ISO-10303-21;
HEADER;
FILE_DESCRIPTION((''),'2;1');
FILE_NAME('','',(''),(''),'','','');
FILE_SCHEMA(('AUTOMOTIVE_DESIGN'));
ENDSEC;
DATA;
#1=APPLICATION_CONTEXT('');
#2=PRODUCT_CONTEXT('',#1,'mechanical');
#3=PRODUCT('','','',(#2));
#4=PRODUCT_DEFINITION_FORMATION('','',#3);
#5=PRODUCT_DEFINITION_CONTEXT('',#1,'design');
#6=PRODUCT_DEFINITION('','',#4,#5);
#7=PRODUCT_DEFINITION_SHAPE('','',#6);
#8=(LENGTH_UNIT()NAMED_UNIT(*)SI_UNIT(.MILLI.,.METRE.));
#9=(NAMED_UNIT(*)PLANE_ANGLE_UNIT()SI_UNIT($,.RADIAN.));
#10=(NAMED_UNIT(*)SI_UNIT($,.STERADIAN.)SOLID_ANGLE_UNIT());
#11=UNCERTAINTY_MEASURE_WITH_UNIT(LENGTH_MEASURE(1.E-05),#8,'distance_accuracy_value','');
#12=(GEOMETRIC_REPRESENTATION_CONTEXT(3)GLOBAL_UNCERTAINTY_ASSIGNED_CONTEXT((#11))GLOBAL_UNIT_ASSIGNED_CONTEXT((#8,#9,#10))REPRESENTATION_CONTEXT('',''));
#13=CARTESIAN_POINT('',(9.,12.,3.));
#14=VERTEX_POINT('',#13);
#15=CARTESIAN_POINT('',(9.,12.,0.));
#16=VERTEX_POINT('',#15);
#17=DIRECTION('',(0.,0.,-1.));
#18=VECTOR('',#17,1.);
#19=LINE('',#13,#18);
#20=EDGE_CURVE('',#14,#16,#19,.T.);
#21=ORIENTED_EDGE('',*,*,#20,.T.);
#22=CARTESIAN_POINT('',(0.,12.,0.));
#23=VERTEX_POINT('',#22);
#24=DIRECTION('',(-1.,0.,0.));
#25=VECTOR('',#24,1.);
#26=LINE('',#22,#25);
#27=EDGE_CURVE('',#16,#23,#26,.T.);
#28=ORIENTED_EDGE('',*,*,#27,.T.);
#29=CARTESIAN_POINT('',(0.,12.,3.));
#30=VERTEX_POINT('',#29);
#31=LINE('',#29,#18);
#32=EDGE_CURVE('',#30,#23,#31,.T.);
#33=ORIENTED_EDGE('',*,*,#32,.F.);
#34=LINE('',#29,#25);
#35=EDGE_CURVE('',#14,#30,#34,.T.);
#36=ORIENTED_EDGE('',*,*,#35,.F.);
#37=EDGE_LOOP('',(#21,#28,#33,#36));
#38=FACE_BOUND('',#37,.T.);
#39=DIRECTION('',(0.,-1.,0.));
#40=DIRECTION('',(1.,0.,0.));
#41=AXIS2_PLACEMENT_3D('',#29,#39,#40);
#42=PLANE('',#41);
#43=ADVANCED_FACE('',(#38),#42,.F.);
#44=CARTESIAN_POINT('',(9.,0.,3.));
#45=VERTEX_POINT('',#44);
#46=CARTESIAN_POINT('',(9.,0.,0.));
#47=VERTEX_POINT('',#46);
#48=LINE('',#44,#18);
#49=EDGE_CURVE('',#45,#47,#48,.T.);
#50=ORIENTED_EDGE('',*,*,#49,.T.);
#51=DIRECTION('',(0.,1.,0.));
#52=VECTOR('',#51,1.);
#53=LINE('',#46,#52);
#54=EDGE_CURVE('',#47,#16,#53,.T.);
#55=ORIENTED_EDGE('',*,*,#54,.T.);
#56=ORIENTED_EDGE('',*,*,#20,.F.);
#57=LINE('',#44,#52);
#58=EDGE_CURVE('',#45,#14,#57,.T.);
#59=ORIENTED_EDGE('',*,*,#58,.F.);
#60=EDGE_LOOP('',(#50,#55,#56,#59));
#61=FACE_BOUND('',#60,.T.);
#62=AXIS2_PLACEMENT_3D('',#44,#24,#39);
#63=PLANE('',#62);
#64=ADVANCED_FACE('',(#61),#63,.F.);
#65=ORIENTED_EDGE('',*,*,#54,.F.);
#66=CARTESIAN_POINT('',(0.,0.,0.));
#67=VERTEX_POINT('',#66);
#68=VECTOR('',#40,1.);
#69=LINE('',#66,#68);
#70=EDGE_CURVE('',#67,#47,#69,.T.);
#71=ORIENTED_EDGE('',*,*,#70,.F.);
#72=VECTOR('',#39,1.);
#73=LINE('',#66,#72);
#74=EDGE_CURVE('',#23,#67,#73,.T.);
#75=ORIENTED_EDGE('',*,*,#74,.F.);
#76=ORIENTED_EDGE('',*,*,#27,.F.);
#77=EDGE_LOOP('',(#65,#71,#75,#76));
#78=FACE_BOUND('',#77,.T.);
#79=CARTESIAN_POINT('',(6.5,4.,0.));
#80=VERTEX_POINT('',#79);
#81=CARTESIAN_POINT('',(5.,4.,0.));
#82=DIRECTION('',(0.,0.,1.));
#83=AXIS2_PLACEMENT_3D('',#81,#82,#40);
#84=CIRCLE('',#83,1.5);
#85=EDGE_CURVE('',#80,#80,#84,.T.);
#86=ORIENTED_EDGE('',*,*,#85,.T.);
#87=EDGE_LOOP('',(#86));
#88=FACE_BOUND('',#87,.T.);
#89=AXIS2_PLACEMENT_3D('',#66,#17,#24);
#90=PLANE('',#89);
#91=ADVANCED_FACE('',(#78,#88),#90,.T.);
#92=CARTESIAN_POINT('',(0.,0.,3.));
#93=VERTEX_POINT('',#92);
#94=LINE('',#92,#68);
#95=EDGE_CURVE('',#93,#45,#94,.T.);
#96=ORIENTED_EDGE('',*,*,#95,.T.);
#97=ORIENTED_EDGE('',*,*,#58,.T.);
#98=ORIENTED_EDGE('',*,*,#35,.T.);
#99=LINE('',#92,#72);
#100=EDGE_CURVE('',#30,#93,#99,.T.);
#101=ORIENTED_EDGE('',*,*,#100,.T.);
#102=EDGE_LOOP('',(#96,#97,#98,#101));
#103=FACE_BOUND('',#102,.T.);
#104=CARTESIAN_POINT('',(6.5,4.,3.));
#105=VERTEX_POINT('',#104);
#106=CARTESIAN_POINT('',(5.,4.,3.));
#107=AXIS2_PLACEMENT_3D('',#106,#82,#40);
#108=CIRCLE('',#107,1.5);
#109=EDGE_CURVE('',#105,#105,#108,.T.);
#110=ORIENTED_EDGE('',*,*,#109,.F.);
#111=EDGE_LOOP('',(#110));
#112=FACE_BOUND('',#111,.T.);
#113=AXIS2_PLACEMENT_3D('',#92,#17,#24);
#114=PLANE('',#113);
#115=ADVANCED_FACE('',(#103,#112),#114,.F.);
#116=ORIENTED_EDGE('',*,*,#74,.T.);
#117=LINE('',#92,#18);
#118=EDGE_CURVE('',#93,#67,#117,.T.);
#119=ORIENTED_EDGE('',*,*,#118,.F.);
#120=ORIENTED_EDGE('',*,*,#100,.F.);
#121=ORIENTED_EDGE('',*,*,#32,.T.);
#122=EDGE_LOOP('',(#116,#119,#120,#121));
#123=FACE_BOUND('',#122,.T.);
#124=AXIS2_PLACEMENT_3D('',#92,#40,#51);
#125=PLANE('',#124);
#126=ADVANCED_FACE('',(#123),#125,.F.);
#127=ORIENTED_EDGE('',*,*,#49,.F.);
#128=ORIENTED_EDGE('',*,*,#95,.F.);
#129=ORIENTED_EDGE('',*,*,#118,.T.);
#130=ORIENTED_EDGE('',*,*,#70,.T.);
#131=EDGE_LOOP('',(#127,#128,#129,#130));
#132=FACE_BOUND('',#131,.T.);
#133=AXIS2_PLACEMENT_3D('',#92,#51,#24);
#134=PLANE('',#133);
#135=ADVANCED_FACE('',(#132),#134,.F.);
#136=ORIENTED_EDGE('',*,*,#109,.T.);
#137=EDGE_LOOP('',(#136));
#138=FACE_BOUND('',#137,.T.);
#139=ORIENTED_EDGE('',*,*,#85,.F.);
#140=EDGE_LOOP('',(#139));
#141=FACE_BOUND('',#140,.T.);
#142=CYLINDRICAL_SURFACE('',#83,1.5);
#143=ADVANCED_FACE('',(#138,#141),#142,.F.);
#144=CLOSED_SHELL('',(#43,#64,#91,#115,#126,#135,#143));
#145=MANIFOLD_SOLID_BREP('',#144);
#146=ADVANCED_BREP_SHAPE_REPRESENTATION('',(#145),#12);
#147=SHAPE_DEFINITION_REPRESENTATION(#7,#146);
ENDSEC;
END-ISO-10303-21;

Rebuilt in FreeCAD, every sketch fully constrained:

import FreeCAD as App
import Part
import Sketcher

V = App.Vector

doc = App.newDocument("Part")
body = doc.addObject("PartDesign::Body", "Body")

sketch1 = body.newObject("Sketcher::SketchObject", "Sketch")
sketch1.AttachmentSupport = (doc.getObject("XY_Plane"), [""])
sketch1.MapMode = "FlatFace"
sketch1.addGeometry(Part.LineSegment(V(0, 12, 0), V(0, 0, 0)), False)
sketch1.addGeometry(Part.LineSegment(V(0, 0, 0), V(9, 0, 0)), False)
sketch1.addGeometry(Part.LineSegment(V(9, 0, 0), V(9, 12, 0)), False)
sketch1.addGeometry(Part.LineSegment(V(9, 12, 0), V(0, 12, 0)), False)
sketch1.addConstraint(Sketcher.Constraint("Coincident", 0, 2, 1, 1))
sketch1.addConstraint(Sketcher.Constraint("Coincident", 1, 2, 2, 1))
sketch1.addConstraint(Sketcher.Constraint("Coincident", 2, 2, 3, 1))
sketch1.addConstraint(Sketcher.Constraint("Coincident", 3, 2, 0, 1))
sketch1.addConstraint(Sketcher.Constraint("Vertical", 0))
sketch1.addConstraint(Sketcher.Constraint("Horizontal", 1))
sketch1.addConstraint(Sketcher.Constraint("Vertical", 2))
sketch1.addConstraint(Sketcher.Constraint("Horizontal", 3))
sketch1.addConstraint(Sketcher.Constraint("Coincident", 0, 2, -1, 1))
sketch1.addConstraint(Sketcher.Constraint("DistanceX", 1, 1, 1, 2, 9.0))
sketch1.addConstraint(Sketcher.Constraint("DistanceY", 0, 2, 0, 1, 12.0))
pad1 = body.newObject("PartDesign::Pad", "Pad")
pad1.Profile = sketch1
pad1.Length = 3

sketch2 = body.newObject("Sketcher::SketchObject", "Sketch001")
sketch2.AttachmentSupport = (doc.getObject("XY_Plane"), [""])
sketch2.MapMode = "FlatFace"
sketch2.AttachmentOffset = App.Placement(V(0, 0, 3), App.Rotation())
sketch2.addGeometry(Part.Circle(V(5, 4, 0), V(0, 0, 1), 1.5), False)
sketch2.addConstraint(Sketcher.Constraint("Diameter", 0, 3.0))
sketch2.addConstraint(Sketcher.Constraint("DistanceX", -1, 1, 0, 3, 5.0))
sketch2.addConstraint(Sketcher.Constraint("DistanceY", -1, 1, 0, 3, 4.0))
pocket1 = body.newObject("PartDesign::Pocket", "Pocket")
pocket1.Profile = sketch2
pocket1.Type = "ThroughAll"

doc.recompute()
